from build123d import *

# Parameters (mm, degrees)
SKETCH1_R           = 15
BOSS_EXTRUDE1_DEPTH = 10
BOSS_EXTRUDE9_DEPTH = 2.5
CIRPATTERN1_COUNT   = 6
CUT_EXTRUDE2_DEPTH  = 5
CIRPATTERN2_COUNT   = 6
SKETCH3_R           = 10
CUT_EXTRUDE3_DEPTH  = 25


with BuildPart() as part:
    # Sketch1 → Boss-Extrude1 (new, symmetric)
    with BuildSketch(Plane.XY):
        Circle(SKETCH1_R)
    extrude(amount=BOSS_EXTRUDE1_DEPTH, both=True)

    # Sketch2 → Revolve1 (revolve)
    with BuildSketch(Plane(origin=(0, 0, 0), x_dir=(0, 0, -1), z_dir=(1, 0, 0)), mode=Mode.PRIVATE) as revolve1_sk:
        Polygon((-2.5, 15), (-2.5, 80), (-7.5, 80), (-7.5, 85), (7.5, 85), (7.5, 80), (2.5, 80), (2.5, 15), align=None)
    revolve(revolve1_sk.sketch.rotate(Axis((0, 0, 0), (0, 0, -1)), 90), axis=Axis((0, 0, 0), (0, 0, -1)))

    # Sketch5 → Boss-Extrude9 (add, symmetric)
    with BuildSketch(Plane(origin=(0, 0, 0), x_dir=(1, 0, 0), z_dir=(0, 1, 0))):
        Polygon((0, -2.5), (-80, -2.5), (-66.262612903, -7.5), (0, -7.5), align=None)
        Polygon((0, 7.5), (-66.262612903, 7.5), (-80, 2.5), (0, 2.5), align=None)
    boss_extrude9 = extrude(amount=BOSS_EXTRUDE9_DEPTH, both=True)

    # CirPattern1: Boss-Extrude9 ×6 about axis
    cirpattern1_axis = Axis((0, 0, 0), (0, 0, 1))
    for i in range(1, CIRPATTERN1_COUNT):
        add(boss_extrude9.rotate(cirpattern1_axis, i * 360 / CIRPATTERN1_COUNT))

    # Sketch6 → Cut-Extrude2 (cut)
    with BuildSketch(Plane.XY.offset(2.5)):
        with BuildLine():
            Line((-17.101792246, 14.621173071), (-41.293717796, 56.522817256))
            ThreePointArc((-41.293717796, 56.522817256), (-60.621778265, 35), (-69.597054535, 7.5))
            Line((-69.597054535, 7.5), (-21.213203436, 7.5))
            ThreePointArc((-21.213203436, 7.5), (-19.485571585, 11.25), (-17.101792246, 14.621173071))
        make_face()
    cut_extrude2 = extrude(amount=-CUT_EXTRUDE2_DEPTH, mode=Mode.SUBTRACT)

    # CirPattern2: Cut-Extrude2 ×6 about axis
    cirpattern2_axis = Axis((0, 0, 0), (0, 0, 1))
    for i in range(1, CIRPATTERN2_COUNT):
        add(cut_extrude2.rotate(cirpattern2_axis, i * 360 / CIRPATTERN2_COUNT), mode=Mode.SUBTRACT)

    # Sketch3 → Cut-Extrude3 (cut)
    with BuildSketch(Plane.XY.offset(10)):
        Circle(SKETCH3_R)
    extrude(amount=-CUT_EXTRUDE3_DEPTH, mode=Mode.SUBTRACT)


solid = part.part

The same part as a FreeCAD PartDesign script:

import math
import FreeCAD as App
import Part
import Sketcher

V = App.Vector
Q = App.Units.Quantity


def add_polygon(sketch, points):
    """Adds a closed chain of lines whose ends are joined by coincident constraints."""
    first, n = sketch.GeometryCount, len(points)
    for a, b in zip(points, points[1:] + points[:1]):
        sketch.addGeometry(Part.LineSegment(App.Vector(*a, 0), App.Vector(*b, 0)), False)
    for i in range(n):
        sketch.addConstraint(Sketcher.Constraint("Coincident", first + i, 2, first + (i + 1) % n, 1))

doc = App.newDocument("Part")
body = doc.addObject("PartDesign::Body", "Body")

sketch1 = doc.addObject("Sketcher::SketchObject", "Sketch")
body.addObject(sketch1)
sketch1.AttachmentSupport = (doc.XY_Plane, [""])
sketch1.MapMode = "FlatFace"
sketch1.addGeometry(Part.Circle(V(0, 0, 0), V(0, 0, 1), 15), False)
sketch1.addConstraint([
    Sketcher.Constraint("Coincident", 0, 3, -1, 1),
    Sketcher.Constraint("Diameter", 0, 30.0),
])
pad1 = doc.addObject("PartDesign::Pad", "Pad")
body.addObject(pad1)
pad1.Profile = sketch1
pad1.Length = 20
pad1.Midplane = True

sketch2 = doc.addObject("Sketcher::SketchObject", "Sketch001")
body.addObject(sketch2)
sketch2.AttachmentSupport = (doc.YZ_Plane, [""])
sketch2.MapMode = "FlatFace"
add_polygon(sketch2, [(80, 2), (15, 2), (15, -2), (80, -2), (80, -8), (85, -8), (85, 8), (80, 8)])
sketch2.addConstraint([
    Sketcher.Constraint("Horizontal", 0),
    Sketcher.Constraint("Vertical", 1),
    Sketcher.Constraint("Horizontal", 2),
    Sketcher.Constraint("Vertical", 3),
    Sketcher.Constraint("Horizontal", 4),
    Sketcher.Constraint("Vertical", 5),
    Sketcher.Constraint("Horizontal", 6),
    Sketcher.Constraint("Vertical", 7),
    Sketcher.Constraint("Symmetric", 3, 2, 6, 2, -1),
    Sketcher.Constraint("Equal", 6, 1),
    Sketcher.Constraint("Equal", 1, 3),
    Sketcher.Constraint("Equal", 3, 7),
    Sketcher.Constraint("DistanceX", 0, 2, 0, 1, 65.0),
    Sketcher.Constraint("DistanceX", 4, 1, 4, 2, 5.0),
    Sketcher.Constraint("DistanceX", -1, 1, 0, 2, 15.0),
])
revolution = doc.addObject("PartDesign::Revolution", "Revolution")
body.addObject(revolution)
revolution.Profile = sketch2
revolution.ReferenceAxis = (sketch2, ["V_Axis"])
revolution.Angle = 360

sketch3 = doc.addObject("Sketcher::SketchObject", "Sketch002")
body.addObject(sketch3)
sketch3.AttachmentSupport = (doc.XZ_Plane, [""])
sketch3.MapMode = "FlatFace"
add_polygon(sketch3, [(0, 2), (-80, 2), (-66, 8), (0, 8)])
add_polygon(sketch3, [(0, -8), (-66, -8), (-80, -2), (0, -2)])
sketch3.addConstraint([
    Sketcher.Constraint("Horizontal", 0),
    Sketcher.Constraint("Horizontal", 2),
    Sketcher.Constraint("Vertical", 3),
    Sketcher.Constraint("Horizontal", 4),
    Sketcher.Constraint("Horizontal", 6),
    Sketcher.Constraint("Vertical", 7),
    Sketcher.Constraint("Symmetric", 3, 2, 6, 2, -1, 1),
    Sketcher.Constraint("Symmetric", 1, 2, 4, 2, -1),
    Sketcher.Constraint("PointOnObject", 2, 2, -2),
    Sketcher.Constraint("Vertical", 0, 2, 5, 2),
    Sketcher.Constraint("DistanceX", 0, 2, 0, 1, 80.0),
    Sketcher.Constraint("DistanceY", 3, 2, 3, 1, 5.0),
    Sketcher.Constraint("Angle", 1, Q("20 deg")),
    Sketcher.Constraint("DistanceY", 4, 2, 1, 2, 15.0),
])
pad2 = doc.addObject("PartDesign::Pad", "Pad001")
body.addObject(pad2)
pad2.Profile = sketch3
pad2.Length = 5
pad2.Midplane = True
doc.recompute()

polarpattern = doc.addObject("PartDesign::PolarPattern", "PolarPattern")
body.addObject(polarpattern)
polarpattern.Originals = [pad2]
polarpattern.Axis = (doc.Z_Axis, [""])
polarpattern.Angle = 360
polarpattern.Occurrences = 6
body.Tip = polarpattern

sketch4 = doc.addObject("Sketcher::SketchObject", "Sketch003")
body.addObject(sketch4)
sketch4.AttachmentSupport = (doc.XY_Plane, [""])
sketch4.MapMode = "FlatFace"
sketch4.AttachmentOffset = App.Placement(V(0, 0, 2.5), App.Rotation())
sketch4.addGeometry([
    Part.LineSegment(V(-17, 15, 0), V(-41, 57, 0)),
    Part.ArcOfCircle(Part.Circle(V(0, 0, 0), V(0, 0, 1), 70), math.radians(126), math.radians(174)),
    Part.LineSegment(V(-70, 8, 0), V(-21, 8, 0)),
    Part.ArcOfCircle(Part.Circle(V(0, 0, 0), V(0, 0, 1), 23), math.radians(139), math.radians(161)),
], False)
sketch4.addConstraint([
    Sketcher.Constraint("Coincident", 0, 2, 1, 1),
    Sketcher.Constraint("Coincident", 1, 2, 2, 1),
    Sketcher.Constraint("Coincident", 2, 2, 3, 2),
    Sketcher.Constraint("Coincident", 3, 1, 0, 1),
    Sketcher.Constraint("Horizontal", 2),
    Sketcher.Constraint("Coincident", 1, 3, -1, 1),
    Sketcher.Constraint("Coincident", 3, 3, -1, 1),
    Sketcher.Constraint("Radius", 1, 70.0),
    Sketcher.Constraint("Radius", 3, 22.5),
    Sketcher.Constraint("Angle", 0, Q("120 deg")),
    Sketcher.Constraint("DistanceY", -1, 1, 1, 2, 7.5),
    Sketcher.Constraint("Distance", 0, 48.383851),
])
pocket1 = doc.addObject("PartDesign::Pocket", "Pocket")
body.addObject(pocket1)
pocket1.Profile = sketch4
pocket1.Length = 5
doc.recompute()

polarpattern2 = doc.addObject("PartDesign::PolarPattern", "PolarPattern001")
body.addObject(polarpattern2)
polarpattern2.Originals = [pocket1]
polarpattern2.Axis = (doc.Z_Axis, [""])
polarpattern2.Angle = 360
polarpattern2.Occurrences = 6
body.Tip = polarpattern2

sketch5 = doc.addObject("Sketcher::SketchObject", "Sketch004")
body.addObject(sketch5)
sketch5.AttachmentSupport = (doc.XY_Plane, [""])
sketch5.MapMode = "FlatFace"
sketch5.AttachmentOffset = App.Placement(V(0, 0, 10), App.Rotation())
sketch5.addGeometry(Part.Circle(V(0, 0, 0), V(0, 0, 1), 10), False)
sketch5.addConstraint([
    Sketcher.Constraint("Coincident", 0, 3, -1, 1),
    Sketcher.Constraint("Diameter", 0, 20.0),
])
pocket2 = doc.addObject("PartDesign::Pocket", "Pocket001")
body.addObject(pocket2)
pocket2.Profile = sketch5
pocket2.Length = 25

doc.recompute()
